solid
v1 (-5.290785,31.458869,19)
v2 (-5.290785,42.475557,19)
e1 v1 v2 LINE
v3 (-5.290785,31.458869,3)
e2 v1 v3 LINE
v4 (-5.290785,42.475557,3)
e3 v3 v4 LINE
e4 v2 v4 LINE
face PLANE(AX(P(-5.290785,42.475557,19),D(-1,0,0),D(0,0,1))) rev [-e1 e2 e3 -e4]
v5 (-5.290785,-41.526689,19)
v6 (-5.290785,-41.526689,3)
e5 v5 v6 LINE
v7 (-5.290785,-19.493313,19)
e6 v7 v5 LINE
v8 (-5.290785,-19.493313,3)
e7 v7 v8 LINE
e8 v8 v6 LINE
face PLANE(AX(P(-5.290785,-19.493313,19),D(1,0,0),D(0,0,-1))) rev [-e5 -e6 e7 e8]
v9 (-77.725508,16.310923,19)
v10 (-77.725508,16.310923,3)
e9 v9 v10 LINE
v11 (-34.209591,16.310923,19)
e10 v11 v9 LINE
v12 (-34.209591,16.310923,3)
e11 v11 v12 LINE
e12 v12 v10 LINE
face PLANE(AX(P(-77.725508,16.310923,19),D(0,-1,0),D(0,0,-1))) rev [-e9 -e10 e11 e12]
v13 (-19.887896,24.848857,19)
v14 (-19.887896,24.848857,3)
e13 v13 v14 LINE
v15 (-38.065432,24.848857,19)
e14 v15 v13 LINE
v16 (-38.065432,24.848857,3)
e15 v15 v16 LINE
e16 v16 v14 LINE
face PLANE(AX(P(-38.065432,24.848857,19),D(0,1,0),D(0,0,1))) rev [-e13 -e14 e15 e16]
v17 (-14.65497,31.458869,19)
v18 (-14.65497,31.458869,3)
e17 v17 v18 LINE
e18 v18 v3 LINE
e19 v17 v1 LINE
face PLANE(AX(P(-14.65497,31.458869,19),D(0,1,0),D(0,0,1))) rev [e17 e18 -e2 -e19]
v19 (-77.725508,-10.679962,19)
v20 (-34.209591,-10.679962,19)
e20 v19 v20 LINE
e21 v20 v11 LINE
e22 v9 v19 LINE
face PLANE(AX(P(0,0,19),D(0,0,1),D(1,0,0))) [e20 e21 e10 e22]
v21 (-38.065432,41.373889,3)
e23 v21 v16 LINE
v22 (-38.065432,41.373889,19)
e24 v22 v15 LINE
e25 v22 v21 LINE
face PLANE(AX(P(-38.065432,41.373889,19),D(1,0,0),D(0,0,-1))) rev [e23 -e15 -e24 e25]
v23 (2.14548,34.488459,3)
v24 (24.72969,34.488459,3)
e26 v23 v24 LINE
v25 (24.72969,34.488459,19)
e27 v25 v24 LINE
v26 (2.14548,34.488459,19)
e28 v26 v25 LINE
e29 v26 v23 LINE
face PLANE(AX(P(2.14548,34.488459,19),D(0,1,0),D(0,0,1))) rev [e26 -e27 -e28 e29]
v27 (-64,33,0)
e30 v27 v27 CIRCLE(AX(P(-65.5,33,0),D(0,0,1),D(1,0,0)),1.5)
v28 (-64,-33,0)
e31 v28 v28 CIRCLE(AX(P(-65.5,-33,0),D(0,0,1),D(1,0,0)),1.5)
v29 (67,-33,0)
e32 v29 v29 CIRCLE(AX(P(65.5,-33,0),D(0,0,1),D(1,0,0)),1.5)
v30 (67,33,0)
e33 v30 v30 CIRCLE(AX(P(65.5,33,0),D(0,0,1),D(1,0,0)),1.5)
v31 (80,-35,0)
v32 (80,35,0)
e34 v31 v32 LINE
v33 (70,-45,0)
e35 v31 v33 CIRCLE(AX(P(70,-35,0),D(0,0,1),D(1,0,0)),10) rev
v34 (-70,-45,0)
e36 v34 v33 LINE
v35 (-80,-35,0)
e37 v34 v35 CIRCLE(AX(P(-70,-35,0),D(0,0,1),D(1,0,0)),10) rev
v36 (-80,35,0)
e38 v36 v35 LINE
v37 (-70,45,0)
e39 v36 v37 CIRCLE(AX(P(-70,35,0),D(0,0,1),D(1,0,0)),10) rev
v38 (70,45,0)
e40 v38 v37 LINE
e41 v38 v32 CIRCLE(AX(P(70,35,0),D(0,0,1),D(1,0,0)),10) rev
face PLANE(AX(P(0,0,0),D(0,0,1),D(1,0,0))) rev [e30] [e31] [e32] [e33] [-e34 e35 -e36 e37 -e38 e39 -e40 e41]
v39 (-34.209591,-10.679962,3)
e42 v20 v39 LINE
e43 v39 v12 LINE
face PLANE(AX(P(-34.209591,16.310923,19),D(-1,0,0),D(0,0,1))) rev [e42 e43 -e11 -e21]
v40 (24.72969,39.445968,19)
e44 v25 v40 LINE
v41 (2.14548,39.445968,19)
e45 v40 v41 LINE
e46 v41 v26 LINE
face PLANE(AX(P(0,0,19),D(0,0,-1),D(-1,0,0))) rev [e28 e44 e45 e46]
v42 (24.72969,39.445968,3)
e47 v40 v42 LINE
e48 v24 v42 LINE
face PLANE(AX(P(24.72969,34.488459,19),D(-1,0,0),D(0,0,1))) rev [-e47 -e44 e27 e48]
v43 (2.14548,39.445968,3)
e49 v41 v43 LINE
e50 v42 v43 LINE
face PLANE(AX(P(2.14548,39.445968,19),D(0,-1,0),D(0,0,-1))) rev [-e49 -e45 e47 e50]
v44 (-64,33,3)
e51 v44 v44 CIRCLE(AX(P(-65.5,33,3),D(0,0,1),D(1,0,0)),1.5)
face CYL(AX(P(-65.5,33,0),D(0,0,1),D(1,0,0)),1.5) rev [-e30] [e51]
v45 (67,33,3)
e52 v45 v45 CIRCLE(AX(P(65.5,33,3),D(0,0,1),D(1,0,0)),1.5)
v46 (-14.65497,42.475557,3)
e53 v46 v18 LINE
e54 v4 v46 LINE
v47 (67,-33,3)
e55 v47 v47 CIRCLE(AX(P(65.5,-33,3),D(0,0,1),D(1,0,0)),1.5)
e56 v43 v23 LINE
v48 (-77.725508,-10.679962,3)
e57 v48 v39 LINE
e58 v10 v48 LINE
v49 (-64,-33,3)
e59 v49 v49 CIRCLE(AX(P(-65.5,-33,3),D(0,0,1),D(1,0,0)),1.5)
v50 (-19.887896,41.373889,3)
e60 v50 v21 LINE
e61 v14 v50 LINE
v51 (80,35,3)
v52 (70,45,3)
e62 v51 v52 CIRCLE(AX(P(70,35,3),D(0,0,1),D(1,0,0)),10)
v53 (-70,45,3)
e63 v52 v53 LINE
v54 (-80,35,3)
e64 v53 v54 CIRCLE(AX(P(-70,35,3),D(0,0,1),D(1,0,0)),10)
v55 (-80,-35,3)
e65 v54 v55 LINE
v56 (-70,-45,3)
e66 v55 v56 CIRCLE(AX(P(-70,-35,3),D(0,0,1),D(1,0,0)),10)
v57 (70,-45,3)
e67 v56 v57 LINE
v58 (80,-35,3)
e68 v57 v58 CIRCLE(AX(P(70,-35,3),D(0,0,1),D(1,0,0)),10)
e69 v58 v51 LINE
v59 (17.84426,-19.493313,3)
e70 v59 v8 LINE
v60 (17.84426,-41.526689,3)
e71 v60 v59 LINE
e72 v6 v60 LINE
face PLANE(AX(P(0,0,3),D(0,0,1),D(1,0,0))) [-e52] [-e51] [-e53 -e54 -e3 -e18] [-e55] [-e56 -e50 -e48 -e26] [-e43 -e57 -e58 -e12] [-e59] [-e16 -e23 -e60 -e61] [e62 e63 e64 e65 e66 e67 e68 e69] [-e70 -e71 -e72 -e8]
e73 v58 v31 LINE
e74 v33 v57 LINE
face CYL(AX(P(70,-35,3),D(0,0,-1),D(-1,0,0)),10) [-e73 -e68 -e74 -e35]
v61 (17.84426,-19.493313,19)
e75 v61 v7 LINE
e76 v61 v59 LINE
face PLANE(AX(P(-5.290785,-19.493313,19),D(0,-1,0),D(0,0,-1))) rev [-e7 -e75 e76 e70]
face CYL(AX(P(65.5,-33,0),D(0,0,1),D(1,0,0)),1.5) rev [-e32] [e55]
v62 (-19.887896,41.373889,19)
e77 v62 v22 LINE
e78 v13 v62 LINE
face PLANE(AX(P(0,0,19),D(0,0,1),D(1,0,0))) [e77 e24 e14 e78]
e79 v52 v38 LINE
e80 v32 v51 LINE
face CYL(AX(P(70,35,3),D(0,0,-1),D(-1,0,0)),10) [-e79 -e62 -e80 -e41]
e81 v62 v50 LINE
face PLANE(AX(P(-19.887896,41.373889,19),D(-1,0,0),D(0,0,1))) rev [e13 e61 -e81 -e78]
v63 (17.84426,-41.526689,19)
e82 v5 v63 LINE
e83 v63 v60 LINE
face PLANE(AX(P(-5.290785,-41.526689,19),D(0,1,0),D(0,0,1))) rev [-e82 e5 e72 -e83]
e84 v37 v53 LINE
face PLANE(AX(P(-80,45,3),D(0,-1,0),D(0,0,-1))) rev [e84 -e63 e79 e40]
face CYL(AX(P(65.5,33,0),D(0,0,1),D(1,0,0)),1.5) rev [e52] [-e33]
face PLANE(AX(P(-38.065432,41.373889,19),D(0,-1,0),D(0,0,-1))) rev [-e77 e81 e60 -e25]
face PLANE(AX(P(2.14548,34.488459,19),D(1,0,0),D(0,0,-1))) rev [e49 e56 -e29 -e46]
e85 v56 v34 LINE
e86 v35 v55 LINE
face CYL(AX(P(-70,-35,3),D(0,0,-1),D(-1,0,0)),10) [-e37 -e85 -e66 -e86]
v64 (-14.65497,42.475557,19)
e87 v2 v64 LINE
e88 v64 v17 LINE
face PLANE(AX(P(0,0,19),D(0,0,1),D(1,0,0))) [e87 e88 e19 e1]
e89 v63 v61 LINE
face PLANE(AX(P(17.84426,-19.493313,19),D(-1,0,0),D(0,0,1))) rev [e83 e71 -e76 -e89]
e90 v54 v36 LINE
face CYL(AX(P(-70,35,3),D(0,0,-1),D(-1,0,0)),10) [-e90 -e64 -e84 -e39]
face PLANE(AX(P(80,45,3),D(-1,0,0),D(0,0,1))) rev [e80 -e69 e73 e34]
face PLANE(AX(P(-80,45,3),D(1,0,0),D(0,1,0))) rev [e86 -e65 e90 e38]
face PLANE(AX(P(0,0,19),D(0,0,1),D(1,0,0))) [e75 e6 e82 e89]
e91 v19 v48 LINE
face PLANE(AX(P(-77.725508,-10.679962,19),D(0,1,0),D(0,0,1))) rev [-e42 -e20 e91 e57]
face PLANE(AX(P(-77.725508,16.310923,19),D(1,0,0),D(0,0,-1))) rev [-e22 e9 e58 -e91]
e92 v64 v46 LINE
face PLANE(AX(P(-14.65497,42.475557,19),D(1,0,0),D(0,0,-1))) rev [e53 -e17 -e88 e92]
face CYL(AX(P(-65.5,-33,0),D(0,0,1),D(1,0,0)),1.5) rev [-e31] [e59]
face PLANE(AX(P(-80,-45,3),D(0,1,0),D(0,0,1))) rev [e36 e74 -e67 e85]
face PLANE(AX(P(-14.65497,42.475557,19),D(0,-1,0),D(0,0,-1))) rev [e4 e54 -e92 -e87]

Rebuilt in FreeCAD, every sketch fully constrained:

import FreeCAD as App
import Part
import Sketcher


def edges_at(feature, points):
    """Names of the edges that pass closest to the given points."""
    edges = feature.Shape.Edges
    near = lambda p: min(range(len(edges)), key=lambda i: edges[i].distToShape(Part.Vertex(*p))[0])
    return sorted({f"Edge{near(p) + 1}" for p in points})

doc = App.newDocument("Part")
params = doc.addObject("Spreadsheet::Sheet", "Params")
for row, (alias, value) in enumerate([
    ("sketch1_width", "160 mm"),
    ("sketch1_height", "90 mm"),
    ("pad1_length", "3 mm"),
    ("fillet_radius", "10 mm"),
    ("sketch2_diameter", "3 mm"),
    ("pad2_length", "16 mm"),
], start=1):
    params.set(f"A{row}", alias)
    params.set(f"B{row}", "=" + value)
    params.setAlias(f"B{row}", alias)

body = doc.addObject("PartDesign::Body", "Body")

# Sketch on XY plane
sketch1 = doc.addObject("Sketcher::SketchObject", "Sketch")
body.addObject(sketch1)
sketch1.AttachmentSupport = (doc.XY_Plane, [""])
sketch1.MapMode = "FlatFace"
sketch1.addGeometry([
    Part.LineSegment(App.Vector(-80, 45, 0), App.Vector(-80, -45, 0)),
    Part.LineSegment(App.Vector(-80, -45, 0), App.Vector(80, -45, 0)),
    Part.LineSegment(App.Vector(80, -45, 0), App.Vector(80, 45, 0)),
    Part.LineSegment(App.Vector(80, 45, 0), App.Vector(-80, 45, 0)),
], False)
sketch1.addConstraint([
    Sketcher.Constraint("Coincident", 0, 2, 1, 1),
    Sketcher.Constraint("Coincident", 1, 2, 2, 1),
    Sketcher.Constraint("Coincident", 2, 2, 3, 1),
    Sketcher.Constraint("Coincident", 3, 2, 0, 1),
    Sketcher.Constraint("Vertical", 0),
    Sketcher.Constraint("Horizontal", 1),
    Sketcher.Constraint("Vertical", 2),
    Sketcher.Constraint("Horizontal", 3),
    Sketcher.Constraint("Symmetric", 0, 2, 2, 2, -1, 1),
    Sketcher.Constraint("DistanceX", 1, 1, 1, 2, 160.0),
    Sketcher.Constraint("DistanceY", 0, 2, 0, 1, 90.0),
])
sketch1.setExpression("Constraints[9]", "Params.sketch1_width")
sketch1.setExpression("Constraints[10]", "Params.sketch1_height")
pad1 = doc.addObject("PartDesign::Pad", "Pad")
body.addObject(pad1)
pad1.Profile = sketch1
pad1.setExpression("Length", "Params.pad1_length")
doc.recompute()

fillet = doc.addObject("PartDesign::Fillet", "Fillet")
body.addObject(fillet)
fillet.Base = (pad1, edges_at(pad1, [
    (80, -45, 1.5),
    (-80, -45, 1.5),
    (-80, 45, 1.5),
    (80, 45, 1.5),
]))
fillet.setExpression("Radius", "Params.fillet_radius")

# Sketch on XY plane
sketch2 = doc.addObject("Sketcher::SketchObject", "Sketch001")
body.addObject(sketch2)
sketch2.AttachmentSupport = (doc.XY_Plane, [""])
sketch2.MapMode = "FlatFace"
sketch2.AttachmentOffset = App.Placement(App.Vector(0, 0, 3), App.Rotation())
sketch2.addGeometry([
    Part.Circle(App.Vector(-65.5, 33, 0), App.Vector(0, 0, 1), 1.5),
    Part.Circle(App.Vector(65.5, 33, 0), App.Vector(0, 0, 1), 1.5),
    Part.Circle(App.Vector(65.5, -33, 0), App.Vector(0, 0, 1), 1.5),
    Part.Circle(App.Vector(-65.5, -33, 0), App.Vector(0, 0, 1), 1.5),
], False)
sketch2.addConstraint([
    Sketcher.Constraint("Equal", 0, 1),
    Sketcher.Constraint("Equal", 1, 2),
    Sketcher.Constraint("Equal", 2, 3),
    Sketcher.Constraint("Symmetric", 0, 3, 2, 3, -1, 1),
    Sketcher.Constraint("Symmetric", 1, 3, 3, 3, -1, 1),
    Sketcher.Constraint("Symmetric", 0, 3, 1, 3, -2),
    Sketcher.Constraint("Diameter", 0, 3.0),
    Sketcher.Constraint("DistanceY", -1, 1, 0, 3, 33.0),
    Sketcher.Constraint("DistanceX", 0, 3, 1, 3, 131.0),
])
sketch2.setExpression("Constraints[6]", "Params.sketch2_diameter")
pocket1 = doc.addObject("PartDesign::Pocket", "Pocket")
body.addObject(pocket1)
pocket1.Profile = sketch2
pocket1.Type = "ThroughAll"

# Sketch on XY plane
sketch3 = doc.addObject("Sketcher::SketchObject", "Sketch002")
body.addObject(sketch3)
sketch3.AttachmentSupport = (doc.XY_Plane, [""])
sketch3.MapMode = "FlatFace"
sketch3.AttachmentOffset = App.Placement(App.Vector(0, 0, 3), App.Rotation())
sketch3.addGeometry([
    Part.LineSegment(App.Vector(-77.725508, 16.310923, 0), App.Vector(-77.725508, -10.679962, 0)),  # 0
    Part.LineSegment(App.Vector(-77.725508, -10.679962, 0), App.Vector(-34.209591, -10.679962, 0)),  # 1
    Part.LineSegment(App.Vector(-34.209591, -10.679962, 0), App.Vector(-34.209591, 16.310923, 0)),  # 2
    Part.LineSegment(App.Vector(-34.209591, 16.310923, 0), App.Vector(-77.725508, 16.310923, 0)),  # 3
    Part.LineSegment(App.Vector(-5.290785, -19.493313, 0), App.Vector(-5.290785, -41.526689, 0)),  # 4
    Part.LineSegment(App.Vector(-5.290785, -41.526689, 0), App.Vector(17.84426, -41.526689, 0)),  # 5
    Part.LineSegment(App.Vector(17.84426, -41.526689, 0), App.Vector(17.84426, -19.493313, 0)),  # 6
    Part.LineSegment(App.Vector(17.84426, -19.493313, 0), App.Vector(-5.290785, -19.493313, 0)),  # 7
    Part.LineSegment(App.Vector(-38.065432, 41.373889, 0), App.Vector(-38.065432, 24.848857, 0)),  # 8
    Part.LineSegment(App.Vector(-38.065432, 24.848857, 0), App.Vector(-19.887896, 24.848857, 0)),  # 9
    Part.LineSegment(App.Vector(-19.887896, 24.848857, 0), App.Vector(-19.887896, 41.373889, 0)),  # 10
    Part.LineSegment(App.Vector(-19.887896, 41.373889, 0), App.Vector(-38.065432, 41.373889, 0)),  # 11
    Part.LineSegment(App.Vector(-14.65497, 42.475557, 0), App.Vector(-14.65497, 31.458869, 0)),  # 12
    Part.LineSegment(App.Vector(-14.65497, 31.458869, 0), App.Vector(-5.290785, 31.458869, 0)),  # 13
    Part.LineSegment(App.Vector(-5.290785, 31.458869, 0), App.Vector(-5.290785, 42.475557, 0)),  # 14
    Part.LineSegment(App.Vector(-5.290785, 42.475557, 0), App.Vector(-14.65497, 42.475557, 0)),  # 15
    Part.LineSegment(App.Vector(2.14548, 39.445968, 0), App.Vector(2.14548, 34.488459, 0)),  # 16
    Part.LineSegment(App.Vector(2.14548, 34.488459, 0), App.Vector(24.72969, 34.488459, 0)),  # 17
    Part.LineSegment(App.Vector(24.72969, 34.488459, 0), App.Vector(24.72969, 39.445968, 0)),  # 18
    Part.LineSegment(App.Vector(24.72969, 39.445968, 0), App.Vector(2.14548, 39.445968, 0)),  # 19
], False)
sketch3.addConstraint([
    Sketcher.Constraint("Coincident", 0, 2, 1, 1),
    Sketcher.Constraint("Coincident", 1, 2, 2, 1),
    Sketcher.Constraint("Coincident", 2, 2, 3, 1),
    Sketcher.Constraint("Coincident", 3, 2, 0, 1),
    Sketcher.Constraint("Coincident", 4, 2, 5, 1),
    Sketcher.Constraint("Coincident", 5, 2, 6, 1),
    Sketcher.Constraint("Coincident", 6, 2, 7, 1),
    Sketcher.Constraint("Coincident", 7, 2, 4, 1),
    Sketcher.Constraint("Coincident", 8, 2, 9, 1),
    Sketcher.Constraint("Coincident", 9, 2, 10, 1),
    Sketcher.Constraint("Coincident", 10, 2, 11, 1),
    Sketcher.Constraint("Coincident", 11, 2, 8, 1),
    Sketcher.Constraint("Coincident", 12, 2, 13, 1),
    Sketcher.Constraint("Coincident", 13, 2, 14, 1),
    Sketcher.Constraint("Coincident", 14, 2, 15, 1),
    Sketcher.Constraint("Coincident", 15, 2, 12, 1),
    Sketcher.Constraint("Coincident", 16, 2, 17, 1),
    Sketcher.Constraint("Coincident", 17, 2, 18, 1),
    Sketcher.Constraint("Coincident", 18, 2, 19, 1),
    Sketcher.Constraint("Coincident", 19, 2, 16, 1),
    Sketcher.Constraint("Vertical", 0),
    Sketcher.Constraint("Horizontal", 1),
    Sketcher.Constraint("Vertical", 2),
    Sketcher.Constraint("Horizontal", 3),
    Sketcher.Constraint("Vertical", 4),
    Sketcher.Constraint("Horizontal", 5),
    Sketcher.Constraint("Vertical", 6),
    Sketcher.Constraint("Horizontal", 7),
    Sketcher.Constraint("Vertical", 8),
    Sketcher.Constraint("Horizontal", 9),
    Sketcher.Constraint("Vertical", 10),
    Sketcher.Constraint("Horizontal", 11),
    Sketcher.Constraint("Vertical", 12),
    Sketcher.Constraint("Horizontal", 13),
    Sketcher.Constraint("Vertical", 14),
    Sketcher.Constraint("Horizontal", 15),
    Sketcher.Constraint("Vertical", 16),
    Sketcher.Constraint("Horizontal", 17),
    Sketcher.Constraint("Vertical", 18),
    Sketcher.Constraint("Horizontal", 19),
    Sketcher.Constraint("Vertical", 7, 2, 13, 2),
    Sketcher.Constraint("DistanceX", 17, 1, 17, 2, 22.58421),
    Sketcher.Constraint("DistanceY", 8, 2, 8, 1, 16.525032),
    Sketcher.Constraint("DistanceY", 16, 2, 16, 1, 4.95751),
    Sketcher.Constraint("DistanceY", 7, 2, 10, 2, 60.867201),
    Sketcher.Constraint("DistanceY", 9, 2, 14, 2, 17.626701),
    Sketcher.Constraint("DistanceY", 16, 2, 14, 2, 7.987099),
    Sketcher.Constraint("DistanceY", 13, 2, 18, 2, 7.987099),
    Sketcher.Constraint("DistanceX", 1, 1, 1, 2, 43.515918),
    Sketcher.Constraint("DistanceX", 5, 1, 5, 2, 23.135045),
    Sketcher.Constraint("DistanceX", 9, 1, 9, 2, 18.177535),
    Sketcher.Constraint("DistanceX", 13, 1, 13, 2, 9.364185),
    Sketcher.Constraint("DistanceY", 0, 2, 0, 1, 26.990886),
    Sketcher.Constraint("DistanceY", 4, 2, 4, 1, 22.033376),
    Sketcher.Constraint("DistanceX", 0, 2, -1, 1, 77.725508),
    Sketcher.Constraint("DistanceY", 4, 2, -1, 1, 41.526689),
    Sketcher.Constraint("DistanceX", -1, 1, 5, 2, 17.84426),
    Sketcher.Constraint("DistanceX", 8, 2, -1, 1, 38.065432),
    Sketcher.Constraint("DistanceX", -1, 1, 16, 2, 2.14548),
    Sketcher.Constraint("DistanceY", 4, 2, 2, 2, 57.837612),
])
pad2 = doc.addObject("PartDesign::Pad", "Pad001")
body.addObject(pad2)
pad2.Profile = sketch3
pad2.setExpression("Length", "Params.pad2_length")

doc.recompute()
